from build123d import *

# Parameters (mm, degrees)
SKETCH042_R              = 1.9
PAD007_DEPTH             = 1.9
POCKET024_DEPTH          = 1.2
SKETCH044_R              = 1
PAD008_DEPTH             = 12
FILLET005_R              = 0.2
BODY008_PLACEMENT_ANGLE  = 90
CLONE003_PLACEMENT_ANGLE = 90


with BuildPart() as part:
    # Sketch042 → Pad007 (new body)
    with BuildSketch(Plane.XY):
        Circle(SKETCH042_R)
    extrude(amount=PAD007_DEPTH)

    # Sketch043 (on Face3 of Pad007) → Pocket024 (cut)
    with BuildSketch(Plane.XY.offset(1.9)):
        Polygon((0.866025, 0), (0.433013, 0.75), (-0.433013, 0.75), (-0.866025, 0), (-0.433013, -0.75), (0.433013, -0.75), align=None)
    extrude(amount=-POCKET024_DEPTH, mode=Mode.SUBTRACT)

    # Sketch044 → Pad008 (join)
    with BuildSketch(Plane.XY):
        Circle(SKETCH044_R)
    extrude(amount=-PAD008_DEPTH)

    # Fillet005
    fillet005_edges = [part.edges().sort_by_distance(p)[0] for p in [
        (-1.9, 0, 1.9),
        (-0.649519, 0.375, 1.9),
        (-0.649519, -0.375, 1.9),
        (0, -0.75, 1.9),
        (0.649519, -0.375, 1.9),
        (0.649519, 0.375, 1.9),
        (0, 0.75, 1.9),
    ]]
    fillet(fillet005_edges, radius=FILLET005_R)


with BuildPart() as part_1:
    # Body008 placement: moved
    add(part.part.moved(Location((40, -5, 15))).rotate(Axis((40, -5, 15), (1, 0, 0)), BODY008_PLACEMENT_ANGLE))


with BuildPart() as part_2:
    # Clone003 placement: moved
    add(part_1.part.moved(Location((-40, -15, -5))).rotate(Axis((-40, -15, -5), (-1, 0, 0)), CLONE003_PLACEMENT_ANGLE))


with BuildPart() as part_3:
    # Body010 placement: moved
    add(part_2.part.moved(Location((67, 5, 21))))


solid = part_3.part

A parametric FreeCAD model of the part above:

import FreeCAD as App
import Part
import Sketcher
from FreeCAD import Vector
Q = App.Units.Quantity


def edges_at(feature, points):
    """Names of the edges that pass closest to the given points."""
    edges = feature.Shape.Edges
    near = lambda p: min(range(len(edges)), key=lambda i: edges[i].distToShape(Part.Vertex(*p))[0])
    return sorted({f"Edge{near(p) + 1}" for p in points})

doc = App.newDocument("Part")
body = doc.addObject("PartDesign::Body", "Body")

sketch1 = body.newObject("Sketcher::SketchObject", "Sketch")
sketch1.AttachmentSupport = (doc.getObject("XY_Plane"), [""])
sketch1.MapMode = "FlatFace"
sketch1.addGeometry(Part.Circle(Vector(0, 0, 0), Vector(0, 0, 1), 1.9), False)
sketch1.addConstraint([
    Sketcher.Constraint("Coincident", 0, 3, -1, 1),
    Sketcher.Constraint("Diameter", 0, Q("3.8 mm")),
])
pad1 = body.newObject("PartDesign::Pad", "Pad")
pad1.Profile = sketch1
pad1.Length = 1.9

sketch2 = body.newObject("Sketcher::SketchObject", "Sketch001")
sketch2.AttachmentSupport = (doc.getObject("XY_Plane"), [""])
sketch2.MapMode = "FlatFace"
sketch2.AttachmentOffset = App.Placement(Vector(0, 0, 1.9), App.Rotation())
sketch2.addGeometry([
    Part.LineSegment(Vector(0.9, 0, 0), Vector(0.4, 0.8, 0)),
    Part.LineSegment(Vector(0.4, 0.8, 0), Vector(-0.4, 0.8, 0)),
    Part.LineSegment(Vector(-0.4, 0.8, 0), Vector(-0.9, 0, 0)),
    Part.LineSegment(Vector(-0.9, 0, 0), Vector(-0.4, -0.8, 0)),
    Part.LineSegment(Vector(-0.4, -0.8, 0), Vector(0.4, -0.8, 0)),
    Part.LineSegment(Vector(0.4, -0.8, 0), Vector(0.9, 0, 0)),
], False)
sketch2.addConstraint([
    Sketcher.Constraint("Coincident", 0, 2, 1, 1),
    Sketcher.Constraint("Coincident", 1, 2, 2, 1),
    Sketcher.Constraint("Coincident", 2, 2, 3, 1),
    Sketcher.Constraint("Coincident", 3, 2, 4, 1),
    Sketcher.Constraint("Coincident", 4, 2, 5, 1),
    Sketcher.Constraint("Coincident", 5, 2, 0, 1),
    Sketcher.Constraint("Horizontal", 1),
    Sketcher.Constraint("Horizontal", 4),
    Sketcher.Constraint("Symmetric", 0, 2, 3, 2, -1, 1),
    Sketcher.Constraint("Symmetric", 2, 2, 5, 2, -1, 1),
    Sketcher.Constraint("PointOnObject", 2, 2, -1),
    Sketcher.Constraint("Parallel", 2, 5),
    Sketcher.Constraint("Vertical", 1, 2, 3, 2),
    Sketcher.Constraint("DistanceY", 3, 2, 1, 2, Q("1.5 mm")),
    Sketcher.Constraint("DistanceX", 1, 2, 1, 1, Q("0.866026 mm")),
    Sketcher.Constraint("DistanceX", 2, 2, 5, 2, Q("1.73205 mm")),
])
pocket1 = body.newObject("PartDesign::Pocket", "Pocket")
pocket1.Profile = sketch2
pocket1.Length = 1.2

sketch3 = body.newObject("Sketcher::SketchObject", "Sketch002")
sketch3.AttachmentSupport = (doc.getObject("XY_Plane"), [""])
sketch3.MapMode = "FlatFace"
sketch3.addGeometry(Part.Circle(Vector(0, 0, 0), Vector(0, 0, 1), 1), False)
sketch3.addConstraint([
    Sketcher.Constraint("Coincident", 0, 3, -1, 1),
    Sketcher.Constraint("Diameter", 0, Q("2 mm")),
])
pad2 = body.newObject("PartDesign::Pad", "Pad001")
pad2.Profile = sketch3
pad2.Length = 12
pad2.Reversed = True
doc.recompute()

fillet = body.newObject("PartDesign::Fillet", "Fillet")
fillet.Base = (pad2, edges_at(pad2, [
    (-1.9, 0, 1.9),
    (-0.65, 0.375, 1.9),
    (-0.65, -0.375, 1.9),
    (0, -0.75, 1.9),
    (0.65, -0.375, 1.9),
    (0.65, 0.375, 1.9),
    (0, 0.75, 1.9),
]))
fillet.Radius = 0.2
body2 = doc.addObject("PartDesign::Body", "Body001")
doc.recompute()

body.Placement = App.Placement(Vector(40, -5, 15), App.Rotation(Vector(1, 0, 0), 90))
boolean = body2.newObject("PartDesign::Boolean", "Boolean")
boolean.Type = "Fuse"
boolean.addObjects([body])
body3 = doc.addObject("PartDesign::Body", "Body002")
doc.recompute()

body2.Placement = App.Placement(Vector(-40, -15, -5), App.Rotation(Vector(-1, 0, 0), 90))
boolean2 = body3.newObject("PartDesign::Boolean", "Boolean001")
boolean2.Type = "Fuse"
boolean2.addObjects([body2])
body4 = doc.addObject("PartDesign::Body", "Body003")
doc.recompute()

body3.Placement = App.Placement(Vector(67, 5, 21), App.Rotation(Vector(0, 0, 1), 0))
boolean3 = body4.newObject("PartDesign::Boolean", "Boolean002")
boolean3.Type = "Fuse"
boolean3.addObjects([body3])

doc.recompute()
